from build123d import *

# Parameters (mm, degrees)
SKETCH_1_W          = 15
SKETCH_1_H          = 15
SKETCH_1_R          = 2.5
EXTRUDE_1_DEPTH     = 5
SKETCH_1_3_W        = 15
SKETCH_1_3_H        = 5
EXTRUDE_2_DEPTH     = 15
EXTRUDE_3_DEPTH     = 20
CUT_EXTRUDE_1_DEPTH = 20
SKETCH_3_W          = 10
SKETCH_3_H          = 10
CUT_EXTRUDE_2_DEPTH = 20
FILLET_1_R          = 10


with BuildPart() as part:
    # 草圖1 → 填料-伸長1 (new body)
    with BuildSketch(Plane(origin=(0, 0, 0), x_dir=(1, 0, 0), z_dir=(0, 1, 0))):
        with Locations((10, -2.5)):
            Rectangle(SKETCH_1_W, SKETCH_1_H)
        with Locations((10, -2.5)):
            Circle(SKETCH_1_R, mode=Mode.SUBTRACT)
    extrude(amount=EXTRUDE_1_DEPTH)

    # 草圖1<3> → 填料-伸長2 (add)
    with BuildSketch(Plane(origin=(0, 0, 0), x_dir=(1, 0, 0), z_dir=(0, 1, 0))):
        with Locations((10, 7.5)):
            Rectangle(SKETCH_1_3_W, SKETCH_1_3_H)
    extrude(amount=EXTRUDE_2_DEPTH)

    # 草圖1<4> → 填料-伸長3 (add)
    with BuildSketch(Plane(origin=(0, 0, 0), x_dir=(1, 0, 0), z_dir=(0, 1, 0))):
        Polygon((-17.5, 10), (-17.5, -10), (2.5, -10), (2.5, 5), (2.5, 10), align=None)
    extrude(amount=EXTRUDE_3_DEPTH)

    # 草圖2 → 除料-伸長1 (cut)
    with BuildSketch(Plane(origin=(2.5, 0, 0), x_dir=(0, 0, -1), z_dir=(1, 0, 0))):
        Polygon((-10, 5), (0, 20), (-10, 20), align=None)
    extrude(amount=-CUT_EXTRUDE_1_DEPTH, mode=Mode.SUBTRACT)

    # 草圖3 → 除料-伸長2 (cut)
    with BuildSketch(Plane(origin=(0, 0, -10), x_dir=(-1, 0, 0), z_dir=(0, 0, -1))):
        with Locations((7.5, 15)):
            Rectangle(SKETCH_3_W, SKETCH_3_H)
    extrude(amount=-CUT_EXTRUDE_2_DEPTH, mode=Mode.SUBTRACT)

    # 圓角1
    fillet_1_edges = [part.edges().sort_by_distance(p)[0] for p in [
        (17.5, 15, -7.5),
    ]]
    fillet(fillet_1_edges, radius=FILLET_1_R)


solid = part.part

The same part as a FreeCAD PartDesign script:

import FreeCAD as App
import Part
import Sketcher
Q = App.Units.Quantity


def edges_at(feature, points):
    """Names of the edges that pass closest to the given points."""
    edges = feature.Shape.Edges
    near = lambda p: min(range(len(edges)), key=lambda i: edges[i].distToShape(Part.Vertex(*p))[0])
    return sorted({f"Edge{near(p) + 1}" for p in points})


def add_polygon(sketch, points):
    """Adds a closed chain of lines whose ends are joined by coincident constraints."""
    first, n = sketch.GeometryCount, len(points)
    for a, b in zip(points, points[1:] + points[:1]):
        sketch.addGeometry(Part.LineSegment(App.Vector(*a, 0), App.Vector(*b, 0)), False)
    for i in range(n):
        sketch.addConstraint(Sketcher.Constraint("Coincident", first + i, 2, first + (i + 1) % n, 1))

doc = App.newDocument("Part")
body = doc.addObject("PartDesign::Body", "Body")

sketch1 = body.newObject("Sketcher::SketchObject", "Sketch")
sketch1.AttachmentSupport = (doc.getObject("XZ_Plane"), [""])
sketch1.MapMode = "FlatFace"
add_polygon(sketch1, [(2.5, -5), (2.5, 10), (17.5, 10), (17.5, -5)])
sketch1.addGeometry(Part.Circle(App.Vector(10, 2.5, 0), App.Vector(0, 0, 1), 2.5), False)
sketch1.addConstraint([
    Sketcher.Constraint("Vertical", 0),
    Sketcher.Constraint("Horizontal", 1),
    Sketcher.Constraint("Vertical", 2),
    Sketcher.Constraint("Horizontal", 3),
    Sketcher.Constraint("Equal", 3, 0),
    Sketcher.Constraint("Diameter", 4, Q("5 mm")),
    Sketcher.Constraint("DistanceX", 1, 1, 1, 2, Q("15 mm")),
    Sketcher.Constraint("DistanceX", -1, 1, 4, 3, Q("10 mm")),
    Sketcher.Constraint("DistanceY", -1, 1, 0, 2, Q("10 mm")),
    Sketcher.Constraint("DistanceY", -1, 1, 4, 3, Q("2.5 mm")),
    Sketcher.Constraint("DistanceX", -1, 1, 0, 2, Q("2.5 mm")),
])
pad1 = body.newObject("PartDesign::Pad", "Pad")
pad1.Profile = sketch1
pad1.Length = 5
pad1.Reversed = True

sketch2 = body.newObject("Sketcher::SketchObject", "Sketch001")
sketch2.AttachmentSupport = (doc.getObject("XZ_Plane"), [""])
sketch2.MapMode = "FlatFace"
add_polygon(sketch2, [(2, -10), (2, -5), (18, -5), (18, -10)])
sketch2.addConstraint([
    Sketcher.Constraint("Vertical", 0),
    Sketcher.Constraint("Horizontal", 1),
    Sketcher.Constraint("Vertical", 2),
    Sketcher.Constraint("Horizontal", 3),
    Sketcher.Constraint("DistanceX", 1, 1, 1, 2, Q("15 mm")),
    Sketcher.Constraint("DistanceY", 0, 1, 0, 2, Q("5 mm")),
    Sketcher.Constraint("DistanceY", 0, 2, -1, 1, Q("5 mm")),
    Sketcher.Constraint("DistanceX", -1, 1, 0, 2, Q("2.5 mm")),
])
pad2 = body.newObject("PartDesign::Pad", "Pad001")
pad2.Profile = sketch2
pad2.Length = 15
pad2.Reversed = True

sketch3 = body.newObject("Sketcher::SketchObject", "Sketch002")
sketch3.AttachmentSupport = (doc.getObject("XZ_Plane"), [""])
sketch3.MapMode = "FlatFace"
add_polygon(sketch3, [(-18, -10), (-18, 10), (2, 10), (2, -10)])
sketch3.addConstraint([
    Sketcher.Constraint("Vertical", 0),
    Sketcher.Constraint("Horizontal", 1),
    Sketcher.Constraint("Vertical", 2),
    Sketcher.Constraint("Horizontal", 3),
    Sketcher.Constraint("Equal", 3, 0),
    Sketcher.Constraint("DistanceX", 1, 1, 1, 2, Q("20 mm")),
    Sketcher.Constraint("DistanceY", -1, 1, 0, 2, Q("10 mm")),
    Sketcher.Constraint("DistanceX", 0, 2, -1, 1, Q("17.5 mm")),
])
pad3 = body.newObject("PartDesign::Pad", "Pad002")
pad3.Profile = sketch3
pad3.Length = 20
pad3.Reversed = True

sketch4 = body.newObject("Sketcher::SketchObject", "Sketch003")
sketch4.AttachmentSupport = (doc.getObject("YZ_Plane"), [""])
sketch4.MapMode = "FlatFace"
sketch4.AttachmentOffset = App.Placement(App.Vector(0, 0, 2.5), App.Rotation())
add_polygon(sketch4, [(5, 10), (20, 0), (20, 10)])
sketch4.addConstraint([
    Sketcher.Constraint("Vertical", 1),
    Sketcher.Constraint("Horizontal", 2),
    Sketcher.Constraint("PointOnObject", 0, 2, -1),
    Sketcher.Constraint("DistanceX", 2, 2, 2, 1, Q("15 mm")),
    Sketcher.Constraint("DistanceY", 1, 1, 1, 2, Q("10 mm")),
    Sketcher.Constraint("DistanceX", -1, 1, 0, 2, Q("20 mm")),
])
pocket1 = body.newObject("PartDesign::Pocket", "Pocket")
pocket1.Profile = sketch4
pocket1.Length = 20

sketch5 = body.newObject("Sketcher::SketchObject", "Sketch004")
sketch5.AttachmentSupport = (doc.getObject("XY_Plane"), [""])
sketch5.MapMode = "FlatFace"
sketch5.AttachmentOffset = App.Placement(App.Vector(0, 0, -10), App.Rotation())
add_polygon(sketch5, [(-2, 20), (-2, 10), (-12, 10), (-12, 20)])
sketch5.addConstraint([
    Sketcher.Constraint("Vertical", 0),
    Sketcher.Constraint("Horizontal", 1),
    Sketcher.Constraint("Vertical", 2),
    Sketcher.Constraint("Horizontal", 3),
    Sketcher.Constraint("Equal", 3, 0),
    Sketcher.Constraint("DistanceX", 1, 2, 1, 1, Q("10 mm")),
    Sketcher.Constraint("DistanceY", -1, 1, 0, 2, Q("10 mm")),
    Sketcher.Constraint("DistanceX", 0, 2, -1, 1, Q("2.5 mm")),
])
pocket2 = body.newObject("PartDesign::Pocket", "Pocket001")
pocket2.Profile = sketch5
pocket2.Length = 20
pocket2.Reversed = True
doc.recompute()

fillet = body.newObject("PartDesign::Fillet", "Fillet")
fillet.Base = (pocket2, edges_at(pocket2, [(17.5, 15, -7.5)]))
fillet.Radius = 10

doc.recompute()
